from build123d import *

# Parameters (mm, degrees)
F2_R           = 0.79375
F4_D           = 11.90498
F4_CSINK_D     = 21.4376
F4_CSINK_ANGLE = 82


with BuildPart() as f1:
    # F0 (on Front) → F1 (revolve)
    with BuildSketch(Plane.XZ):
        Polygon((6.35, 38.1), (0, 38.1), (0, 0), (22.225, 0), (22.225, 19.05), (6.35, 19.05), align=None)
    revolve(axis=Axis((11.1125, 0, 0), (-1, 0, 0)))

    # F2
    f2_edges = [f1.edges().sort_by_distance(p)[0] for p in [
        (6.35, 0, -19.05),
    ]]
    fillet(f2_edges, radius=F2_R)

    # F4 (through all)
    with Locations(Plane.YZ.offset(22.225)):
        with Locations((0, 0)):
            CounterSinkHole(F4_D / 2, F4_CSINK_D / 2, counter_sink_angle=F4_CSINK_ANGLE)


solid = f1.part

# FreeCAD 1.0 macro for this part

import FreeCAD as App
import Part
import Sketcher

V = App.Vector
Q = App.Units.Quantity


def edges_at(feature, points):
    """Names of the edges that pass closest to the given points."""
    edges = feature.Shape.Edges
    near = lambda p: min(range(len(edges)), key=lambda i: edges[i].distToShape(Part.Vertex(*p))[0])
    return sorted({f"Edge{near(p) + 1}" for p in points})


def add_polygon(sketch, points):
    """Adds a closed chain of lines whose ends are joined by coincident constraints."""
    first, n = sketch.GeometryCount, len(points)
    for a, b in zip(points, points[1:] + points[:1]):
        sketch.addGeometry(Part.LineSegment(App.Vector(*a, 0), App.Vector(*b, 0)), False)
    for i in range(n):
        sketch.addConstraint(Sketcher.Constraint("Coincident", first + i, 2, first + (i + 1) % n, 1))

doc = App.newDocument("Part")
body = doc.addObject("PartDesign::Body", "Body")

sketch1 = body.newObject("Sketcher::SketchObject", "Sketch")
sketch1.AttachmentSupport = (doc.getObject("XZ_Plane"), [""])
sketch1.MapMode = "FlatFace"
add_polygon(sketch1, [(6, 38), (0, 38), (0, 0), (22, 0), (22, 19), (6, 19)])
sketch1.addConstraint(Sketcher.Constraint("Horizontal", 0))
sketch1.addConstraint(Sketcher.Constraint("Vertical", 1))
sketch1.addConstraint(Sketcher.Constraint("Horizontal", 2))
sketch1.addConstraint(Sketcher.Constraint("Vertical", 3))
sketch1.addConstraint(Sketcher.Constraint("Horizontal", 4))
sketch1.addConstraint(Sketcher.Constraint("Vertical", 5))
sketch1.addConstraint(Sketcher.Constraint("Coincident", 1, 2, -1, 1))
sketch1.addConstraint(Sketcher.Constraint("Equal", 3, 5))
sketch1.addConstraint(Sketcher.Constraint("DistanceY", 1, 2, 1, 1, Q("1.5 in")))
sketch1.addConstraint(Sketcher.Constraint("DistanceX", 0, 2, 0, 1, Q("0.25 in")))
sketch1.addConstraint(Sketcher.Constraint("DistanceX", 2, 1, 2, 2, Q("0.875 in")))
revolution = body.newObject("PartDesign::Revolution", "Revolution")
revolution.Profile = sketch1
revolution.ReferenceAxis = (sketch1, ["H_Axis"])
revolution.Angle = 360
doc.recompute()

fillet = body.newObject("PartDesign::Fillet", "Fillet")
fillet.Base = (revolution, edges_at(revolution, [(6.35, 0, -19.05)]))
fillet.Radius = Q("0.03125 in")

sketch2 = body.newObject("Sketcher::SketchObject", "Sketch001")
sketch2.AttachmentSupport = (doc.getObject("YZ_Plane"), [""])
sketch2.MapMode = "FlatFace"
sketch2.AttachmentOffset = App.Placement(V(0, 0, 0.875 * 25.4), App.Rotation())
sketch2.addGeometry(Part.Circle(V(0, 0, 0), V(0, 0, 1), 6), False)
sketch2.addConstraint(Sketcher.Constraint("Coincident", 0, 3, -1, 1))
sketch2.addConstraint(Sketcher.Constraint("Diameter", 0, Q("0.4687 in")))
doc.recompute()
hole = body.newObject("PartDesign::Hole", "Hole")
hole.Profile = sketch2
hole.ThreadType = "None"
hole.Diameter = Q("0.4687 in")
hole.DepthType = "ThroughAll"
hole.HoleCutType = "Countersink"
hole.HoleCutDiameter = Q("0.844 in")
hole.HoleCutCountersinkAngle = 82

doc.recompute()
